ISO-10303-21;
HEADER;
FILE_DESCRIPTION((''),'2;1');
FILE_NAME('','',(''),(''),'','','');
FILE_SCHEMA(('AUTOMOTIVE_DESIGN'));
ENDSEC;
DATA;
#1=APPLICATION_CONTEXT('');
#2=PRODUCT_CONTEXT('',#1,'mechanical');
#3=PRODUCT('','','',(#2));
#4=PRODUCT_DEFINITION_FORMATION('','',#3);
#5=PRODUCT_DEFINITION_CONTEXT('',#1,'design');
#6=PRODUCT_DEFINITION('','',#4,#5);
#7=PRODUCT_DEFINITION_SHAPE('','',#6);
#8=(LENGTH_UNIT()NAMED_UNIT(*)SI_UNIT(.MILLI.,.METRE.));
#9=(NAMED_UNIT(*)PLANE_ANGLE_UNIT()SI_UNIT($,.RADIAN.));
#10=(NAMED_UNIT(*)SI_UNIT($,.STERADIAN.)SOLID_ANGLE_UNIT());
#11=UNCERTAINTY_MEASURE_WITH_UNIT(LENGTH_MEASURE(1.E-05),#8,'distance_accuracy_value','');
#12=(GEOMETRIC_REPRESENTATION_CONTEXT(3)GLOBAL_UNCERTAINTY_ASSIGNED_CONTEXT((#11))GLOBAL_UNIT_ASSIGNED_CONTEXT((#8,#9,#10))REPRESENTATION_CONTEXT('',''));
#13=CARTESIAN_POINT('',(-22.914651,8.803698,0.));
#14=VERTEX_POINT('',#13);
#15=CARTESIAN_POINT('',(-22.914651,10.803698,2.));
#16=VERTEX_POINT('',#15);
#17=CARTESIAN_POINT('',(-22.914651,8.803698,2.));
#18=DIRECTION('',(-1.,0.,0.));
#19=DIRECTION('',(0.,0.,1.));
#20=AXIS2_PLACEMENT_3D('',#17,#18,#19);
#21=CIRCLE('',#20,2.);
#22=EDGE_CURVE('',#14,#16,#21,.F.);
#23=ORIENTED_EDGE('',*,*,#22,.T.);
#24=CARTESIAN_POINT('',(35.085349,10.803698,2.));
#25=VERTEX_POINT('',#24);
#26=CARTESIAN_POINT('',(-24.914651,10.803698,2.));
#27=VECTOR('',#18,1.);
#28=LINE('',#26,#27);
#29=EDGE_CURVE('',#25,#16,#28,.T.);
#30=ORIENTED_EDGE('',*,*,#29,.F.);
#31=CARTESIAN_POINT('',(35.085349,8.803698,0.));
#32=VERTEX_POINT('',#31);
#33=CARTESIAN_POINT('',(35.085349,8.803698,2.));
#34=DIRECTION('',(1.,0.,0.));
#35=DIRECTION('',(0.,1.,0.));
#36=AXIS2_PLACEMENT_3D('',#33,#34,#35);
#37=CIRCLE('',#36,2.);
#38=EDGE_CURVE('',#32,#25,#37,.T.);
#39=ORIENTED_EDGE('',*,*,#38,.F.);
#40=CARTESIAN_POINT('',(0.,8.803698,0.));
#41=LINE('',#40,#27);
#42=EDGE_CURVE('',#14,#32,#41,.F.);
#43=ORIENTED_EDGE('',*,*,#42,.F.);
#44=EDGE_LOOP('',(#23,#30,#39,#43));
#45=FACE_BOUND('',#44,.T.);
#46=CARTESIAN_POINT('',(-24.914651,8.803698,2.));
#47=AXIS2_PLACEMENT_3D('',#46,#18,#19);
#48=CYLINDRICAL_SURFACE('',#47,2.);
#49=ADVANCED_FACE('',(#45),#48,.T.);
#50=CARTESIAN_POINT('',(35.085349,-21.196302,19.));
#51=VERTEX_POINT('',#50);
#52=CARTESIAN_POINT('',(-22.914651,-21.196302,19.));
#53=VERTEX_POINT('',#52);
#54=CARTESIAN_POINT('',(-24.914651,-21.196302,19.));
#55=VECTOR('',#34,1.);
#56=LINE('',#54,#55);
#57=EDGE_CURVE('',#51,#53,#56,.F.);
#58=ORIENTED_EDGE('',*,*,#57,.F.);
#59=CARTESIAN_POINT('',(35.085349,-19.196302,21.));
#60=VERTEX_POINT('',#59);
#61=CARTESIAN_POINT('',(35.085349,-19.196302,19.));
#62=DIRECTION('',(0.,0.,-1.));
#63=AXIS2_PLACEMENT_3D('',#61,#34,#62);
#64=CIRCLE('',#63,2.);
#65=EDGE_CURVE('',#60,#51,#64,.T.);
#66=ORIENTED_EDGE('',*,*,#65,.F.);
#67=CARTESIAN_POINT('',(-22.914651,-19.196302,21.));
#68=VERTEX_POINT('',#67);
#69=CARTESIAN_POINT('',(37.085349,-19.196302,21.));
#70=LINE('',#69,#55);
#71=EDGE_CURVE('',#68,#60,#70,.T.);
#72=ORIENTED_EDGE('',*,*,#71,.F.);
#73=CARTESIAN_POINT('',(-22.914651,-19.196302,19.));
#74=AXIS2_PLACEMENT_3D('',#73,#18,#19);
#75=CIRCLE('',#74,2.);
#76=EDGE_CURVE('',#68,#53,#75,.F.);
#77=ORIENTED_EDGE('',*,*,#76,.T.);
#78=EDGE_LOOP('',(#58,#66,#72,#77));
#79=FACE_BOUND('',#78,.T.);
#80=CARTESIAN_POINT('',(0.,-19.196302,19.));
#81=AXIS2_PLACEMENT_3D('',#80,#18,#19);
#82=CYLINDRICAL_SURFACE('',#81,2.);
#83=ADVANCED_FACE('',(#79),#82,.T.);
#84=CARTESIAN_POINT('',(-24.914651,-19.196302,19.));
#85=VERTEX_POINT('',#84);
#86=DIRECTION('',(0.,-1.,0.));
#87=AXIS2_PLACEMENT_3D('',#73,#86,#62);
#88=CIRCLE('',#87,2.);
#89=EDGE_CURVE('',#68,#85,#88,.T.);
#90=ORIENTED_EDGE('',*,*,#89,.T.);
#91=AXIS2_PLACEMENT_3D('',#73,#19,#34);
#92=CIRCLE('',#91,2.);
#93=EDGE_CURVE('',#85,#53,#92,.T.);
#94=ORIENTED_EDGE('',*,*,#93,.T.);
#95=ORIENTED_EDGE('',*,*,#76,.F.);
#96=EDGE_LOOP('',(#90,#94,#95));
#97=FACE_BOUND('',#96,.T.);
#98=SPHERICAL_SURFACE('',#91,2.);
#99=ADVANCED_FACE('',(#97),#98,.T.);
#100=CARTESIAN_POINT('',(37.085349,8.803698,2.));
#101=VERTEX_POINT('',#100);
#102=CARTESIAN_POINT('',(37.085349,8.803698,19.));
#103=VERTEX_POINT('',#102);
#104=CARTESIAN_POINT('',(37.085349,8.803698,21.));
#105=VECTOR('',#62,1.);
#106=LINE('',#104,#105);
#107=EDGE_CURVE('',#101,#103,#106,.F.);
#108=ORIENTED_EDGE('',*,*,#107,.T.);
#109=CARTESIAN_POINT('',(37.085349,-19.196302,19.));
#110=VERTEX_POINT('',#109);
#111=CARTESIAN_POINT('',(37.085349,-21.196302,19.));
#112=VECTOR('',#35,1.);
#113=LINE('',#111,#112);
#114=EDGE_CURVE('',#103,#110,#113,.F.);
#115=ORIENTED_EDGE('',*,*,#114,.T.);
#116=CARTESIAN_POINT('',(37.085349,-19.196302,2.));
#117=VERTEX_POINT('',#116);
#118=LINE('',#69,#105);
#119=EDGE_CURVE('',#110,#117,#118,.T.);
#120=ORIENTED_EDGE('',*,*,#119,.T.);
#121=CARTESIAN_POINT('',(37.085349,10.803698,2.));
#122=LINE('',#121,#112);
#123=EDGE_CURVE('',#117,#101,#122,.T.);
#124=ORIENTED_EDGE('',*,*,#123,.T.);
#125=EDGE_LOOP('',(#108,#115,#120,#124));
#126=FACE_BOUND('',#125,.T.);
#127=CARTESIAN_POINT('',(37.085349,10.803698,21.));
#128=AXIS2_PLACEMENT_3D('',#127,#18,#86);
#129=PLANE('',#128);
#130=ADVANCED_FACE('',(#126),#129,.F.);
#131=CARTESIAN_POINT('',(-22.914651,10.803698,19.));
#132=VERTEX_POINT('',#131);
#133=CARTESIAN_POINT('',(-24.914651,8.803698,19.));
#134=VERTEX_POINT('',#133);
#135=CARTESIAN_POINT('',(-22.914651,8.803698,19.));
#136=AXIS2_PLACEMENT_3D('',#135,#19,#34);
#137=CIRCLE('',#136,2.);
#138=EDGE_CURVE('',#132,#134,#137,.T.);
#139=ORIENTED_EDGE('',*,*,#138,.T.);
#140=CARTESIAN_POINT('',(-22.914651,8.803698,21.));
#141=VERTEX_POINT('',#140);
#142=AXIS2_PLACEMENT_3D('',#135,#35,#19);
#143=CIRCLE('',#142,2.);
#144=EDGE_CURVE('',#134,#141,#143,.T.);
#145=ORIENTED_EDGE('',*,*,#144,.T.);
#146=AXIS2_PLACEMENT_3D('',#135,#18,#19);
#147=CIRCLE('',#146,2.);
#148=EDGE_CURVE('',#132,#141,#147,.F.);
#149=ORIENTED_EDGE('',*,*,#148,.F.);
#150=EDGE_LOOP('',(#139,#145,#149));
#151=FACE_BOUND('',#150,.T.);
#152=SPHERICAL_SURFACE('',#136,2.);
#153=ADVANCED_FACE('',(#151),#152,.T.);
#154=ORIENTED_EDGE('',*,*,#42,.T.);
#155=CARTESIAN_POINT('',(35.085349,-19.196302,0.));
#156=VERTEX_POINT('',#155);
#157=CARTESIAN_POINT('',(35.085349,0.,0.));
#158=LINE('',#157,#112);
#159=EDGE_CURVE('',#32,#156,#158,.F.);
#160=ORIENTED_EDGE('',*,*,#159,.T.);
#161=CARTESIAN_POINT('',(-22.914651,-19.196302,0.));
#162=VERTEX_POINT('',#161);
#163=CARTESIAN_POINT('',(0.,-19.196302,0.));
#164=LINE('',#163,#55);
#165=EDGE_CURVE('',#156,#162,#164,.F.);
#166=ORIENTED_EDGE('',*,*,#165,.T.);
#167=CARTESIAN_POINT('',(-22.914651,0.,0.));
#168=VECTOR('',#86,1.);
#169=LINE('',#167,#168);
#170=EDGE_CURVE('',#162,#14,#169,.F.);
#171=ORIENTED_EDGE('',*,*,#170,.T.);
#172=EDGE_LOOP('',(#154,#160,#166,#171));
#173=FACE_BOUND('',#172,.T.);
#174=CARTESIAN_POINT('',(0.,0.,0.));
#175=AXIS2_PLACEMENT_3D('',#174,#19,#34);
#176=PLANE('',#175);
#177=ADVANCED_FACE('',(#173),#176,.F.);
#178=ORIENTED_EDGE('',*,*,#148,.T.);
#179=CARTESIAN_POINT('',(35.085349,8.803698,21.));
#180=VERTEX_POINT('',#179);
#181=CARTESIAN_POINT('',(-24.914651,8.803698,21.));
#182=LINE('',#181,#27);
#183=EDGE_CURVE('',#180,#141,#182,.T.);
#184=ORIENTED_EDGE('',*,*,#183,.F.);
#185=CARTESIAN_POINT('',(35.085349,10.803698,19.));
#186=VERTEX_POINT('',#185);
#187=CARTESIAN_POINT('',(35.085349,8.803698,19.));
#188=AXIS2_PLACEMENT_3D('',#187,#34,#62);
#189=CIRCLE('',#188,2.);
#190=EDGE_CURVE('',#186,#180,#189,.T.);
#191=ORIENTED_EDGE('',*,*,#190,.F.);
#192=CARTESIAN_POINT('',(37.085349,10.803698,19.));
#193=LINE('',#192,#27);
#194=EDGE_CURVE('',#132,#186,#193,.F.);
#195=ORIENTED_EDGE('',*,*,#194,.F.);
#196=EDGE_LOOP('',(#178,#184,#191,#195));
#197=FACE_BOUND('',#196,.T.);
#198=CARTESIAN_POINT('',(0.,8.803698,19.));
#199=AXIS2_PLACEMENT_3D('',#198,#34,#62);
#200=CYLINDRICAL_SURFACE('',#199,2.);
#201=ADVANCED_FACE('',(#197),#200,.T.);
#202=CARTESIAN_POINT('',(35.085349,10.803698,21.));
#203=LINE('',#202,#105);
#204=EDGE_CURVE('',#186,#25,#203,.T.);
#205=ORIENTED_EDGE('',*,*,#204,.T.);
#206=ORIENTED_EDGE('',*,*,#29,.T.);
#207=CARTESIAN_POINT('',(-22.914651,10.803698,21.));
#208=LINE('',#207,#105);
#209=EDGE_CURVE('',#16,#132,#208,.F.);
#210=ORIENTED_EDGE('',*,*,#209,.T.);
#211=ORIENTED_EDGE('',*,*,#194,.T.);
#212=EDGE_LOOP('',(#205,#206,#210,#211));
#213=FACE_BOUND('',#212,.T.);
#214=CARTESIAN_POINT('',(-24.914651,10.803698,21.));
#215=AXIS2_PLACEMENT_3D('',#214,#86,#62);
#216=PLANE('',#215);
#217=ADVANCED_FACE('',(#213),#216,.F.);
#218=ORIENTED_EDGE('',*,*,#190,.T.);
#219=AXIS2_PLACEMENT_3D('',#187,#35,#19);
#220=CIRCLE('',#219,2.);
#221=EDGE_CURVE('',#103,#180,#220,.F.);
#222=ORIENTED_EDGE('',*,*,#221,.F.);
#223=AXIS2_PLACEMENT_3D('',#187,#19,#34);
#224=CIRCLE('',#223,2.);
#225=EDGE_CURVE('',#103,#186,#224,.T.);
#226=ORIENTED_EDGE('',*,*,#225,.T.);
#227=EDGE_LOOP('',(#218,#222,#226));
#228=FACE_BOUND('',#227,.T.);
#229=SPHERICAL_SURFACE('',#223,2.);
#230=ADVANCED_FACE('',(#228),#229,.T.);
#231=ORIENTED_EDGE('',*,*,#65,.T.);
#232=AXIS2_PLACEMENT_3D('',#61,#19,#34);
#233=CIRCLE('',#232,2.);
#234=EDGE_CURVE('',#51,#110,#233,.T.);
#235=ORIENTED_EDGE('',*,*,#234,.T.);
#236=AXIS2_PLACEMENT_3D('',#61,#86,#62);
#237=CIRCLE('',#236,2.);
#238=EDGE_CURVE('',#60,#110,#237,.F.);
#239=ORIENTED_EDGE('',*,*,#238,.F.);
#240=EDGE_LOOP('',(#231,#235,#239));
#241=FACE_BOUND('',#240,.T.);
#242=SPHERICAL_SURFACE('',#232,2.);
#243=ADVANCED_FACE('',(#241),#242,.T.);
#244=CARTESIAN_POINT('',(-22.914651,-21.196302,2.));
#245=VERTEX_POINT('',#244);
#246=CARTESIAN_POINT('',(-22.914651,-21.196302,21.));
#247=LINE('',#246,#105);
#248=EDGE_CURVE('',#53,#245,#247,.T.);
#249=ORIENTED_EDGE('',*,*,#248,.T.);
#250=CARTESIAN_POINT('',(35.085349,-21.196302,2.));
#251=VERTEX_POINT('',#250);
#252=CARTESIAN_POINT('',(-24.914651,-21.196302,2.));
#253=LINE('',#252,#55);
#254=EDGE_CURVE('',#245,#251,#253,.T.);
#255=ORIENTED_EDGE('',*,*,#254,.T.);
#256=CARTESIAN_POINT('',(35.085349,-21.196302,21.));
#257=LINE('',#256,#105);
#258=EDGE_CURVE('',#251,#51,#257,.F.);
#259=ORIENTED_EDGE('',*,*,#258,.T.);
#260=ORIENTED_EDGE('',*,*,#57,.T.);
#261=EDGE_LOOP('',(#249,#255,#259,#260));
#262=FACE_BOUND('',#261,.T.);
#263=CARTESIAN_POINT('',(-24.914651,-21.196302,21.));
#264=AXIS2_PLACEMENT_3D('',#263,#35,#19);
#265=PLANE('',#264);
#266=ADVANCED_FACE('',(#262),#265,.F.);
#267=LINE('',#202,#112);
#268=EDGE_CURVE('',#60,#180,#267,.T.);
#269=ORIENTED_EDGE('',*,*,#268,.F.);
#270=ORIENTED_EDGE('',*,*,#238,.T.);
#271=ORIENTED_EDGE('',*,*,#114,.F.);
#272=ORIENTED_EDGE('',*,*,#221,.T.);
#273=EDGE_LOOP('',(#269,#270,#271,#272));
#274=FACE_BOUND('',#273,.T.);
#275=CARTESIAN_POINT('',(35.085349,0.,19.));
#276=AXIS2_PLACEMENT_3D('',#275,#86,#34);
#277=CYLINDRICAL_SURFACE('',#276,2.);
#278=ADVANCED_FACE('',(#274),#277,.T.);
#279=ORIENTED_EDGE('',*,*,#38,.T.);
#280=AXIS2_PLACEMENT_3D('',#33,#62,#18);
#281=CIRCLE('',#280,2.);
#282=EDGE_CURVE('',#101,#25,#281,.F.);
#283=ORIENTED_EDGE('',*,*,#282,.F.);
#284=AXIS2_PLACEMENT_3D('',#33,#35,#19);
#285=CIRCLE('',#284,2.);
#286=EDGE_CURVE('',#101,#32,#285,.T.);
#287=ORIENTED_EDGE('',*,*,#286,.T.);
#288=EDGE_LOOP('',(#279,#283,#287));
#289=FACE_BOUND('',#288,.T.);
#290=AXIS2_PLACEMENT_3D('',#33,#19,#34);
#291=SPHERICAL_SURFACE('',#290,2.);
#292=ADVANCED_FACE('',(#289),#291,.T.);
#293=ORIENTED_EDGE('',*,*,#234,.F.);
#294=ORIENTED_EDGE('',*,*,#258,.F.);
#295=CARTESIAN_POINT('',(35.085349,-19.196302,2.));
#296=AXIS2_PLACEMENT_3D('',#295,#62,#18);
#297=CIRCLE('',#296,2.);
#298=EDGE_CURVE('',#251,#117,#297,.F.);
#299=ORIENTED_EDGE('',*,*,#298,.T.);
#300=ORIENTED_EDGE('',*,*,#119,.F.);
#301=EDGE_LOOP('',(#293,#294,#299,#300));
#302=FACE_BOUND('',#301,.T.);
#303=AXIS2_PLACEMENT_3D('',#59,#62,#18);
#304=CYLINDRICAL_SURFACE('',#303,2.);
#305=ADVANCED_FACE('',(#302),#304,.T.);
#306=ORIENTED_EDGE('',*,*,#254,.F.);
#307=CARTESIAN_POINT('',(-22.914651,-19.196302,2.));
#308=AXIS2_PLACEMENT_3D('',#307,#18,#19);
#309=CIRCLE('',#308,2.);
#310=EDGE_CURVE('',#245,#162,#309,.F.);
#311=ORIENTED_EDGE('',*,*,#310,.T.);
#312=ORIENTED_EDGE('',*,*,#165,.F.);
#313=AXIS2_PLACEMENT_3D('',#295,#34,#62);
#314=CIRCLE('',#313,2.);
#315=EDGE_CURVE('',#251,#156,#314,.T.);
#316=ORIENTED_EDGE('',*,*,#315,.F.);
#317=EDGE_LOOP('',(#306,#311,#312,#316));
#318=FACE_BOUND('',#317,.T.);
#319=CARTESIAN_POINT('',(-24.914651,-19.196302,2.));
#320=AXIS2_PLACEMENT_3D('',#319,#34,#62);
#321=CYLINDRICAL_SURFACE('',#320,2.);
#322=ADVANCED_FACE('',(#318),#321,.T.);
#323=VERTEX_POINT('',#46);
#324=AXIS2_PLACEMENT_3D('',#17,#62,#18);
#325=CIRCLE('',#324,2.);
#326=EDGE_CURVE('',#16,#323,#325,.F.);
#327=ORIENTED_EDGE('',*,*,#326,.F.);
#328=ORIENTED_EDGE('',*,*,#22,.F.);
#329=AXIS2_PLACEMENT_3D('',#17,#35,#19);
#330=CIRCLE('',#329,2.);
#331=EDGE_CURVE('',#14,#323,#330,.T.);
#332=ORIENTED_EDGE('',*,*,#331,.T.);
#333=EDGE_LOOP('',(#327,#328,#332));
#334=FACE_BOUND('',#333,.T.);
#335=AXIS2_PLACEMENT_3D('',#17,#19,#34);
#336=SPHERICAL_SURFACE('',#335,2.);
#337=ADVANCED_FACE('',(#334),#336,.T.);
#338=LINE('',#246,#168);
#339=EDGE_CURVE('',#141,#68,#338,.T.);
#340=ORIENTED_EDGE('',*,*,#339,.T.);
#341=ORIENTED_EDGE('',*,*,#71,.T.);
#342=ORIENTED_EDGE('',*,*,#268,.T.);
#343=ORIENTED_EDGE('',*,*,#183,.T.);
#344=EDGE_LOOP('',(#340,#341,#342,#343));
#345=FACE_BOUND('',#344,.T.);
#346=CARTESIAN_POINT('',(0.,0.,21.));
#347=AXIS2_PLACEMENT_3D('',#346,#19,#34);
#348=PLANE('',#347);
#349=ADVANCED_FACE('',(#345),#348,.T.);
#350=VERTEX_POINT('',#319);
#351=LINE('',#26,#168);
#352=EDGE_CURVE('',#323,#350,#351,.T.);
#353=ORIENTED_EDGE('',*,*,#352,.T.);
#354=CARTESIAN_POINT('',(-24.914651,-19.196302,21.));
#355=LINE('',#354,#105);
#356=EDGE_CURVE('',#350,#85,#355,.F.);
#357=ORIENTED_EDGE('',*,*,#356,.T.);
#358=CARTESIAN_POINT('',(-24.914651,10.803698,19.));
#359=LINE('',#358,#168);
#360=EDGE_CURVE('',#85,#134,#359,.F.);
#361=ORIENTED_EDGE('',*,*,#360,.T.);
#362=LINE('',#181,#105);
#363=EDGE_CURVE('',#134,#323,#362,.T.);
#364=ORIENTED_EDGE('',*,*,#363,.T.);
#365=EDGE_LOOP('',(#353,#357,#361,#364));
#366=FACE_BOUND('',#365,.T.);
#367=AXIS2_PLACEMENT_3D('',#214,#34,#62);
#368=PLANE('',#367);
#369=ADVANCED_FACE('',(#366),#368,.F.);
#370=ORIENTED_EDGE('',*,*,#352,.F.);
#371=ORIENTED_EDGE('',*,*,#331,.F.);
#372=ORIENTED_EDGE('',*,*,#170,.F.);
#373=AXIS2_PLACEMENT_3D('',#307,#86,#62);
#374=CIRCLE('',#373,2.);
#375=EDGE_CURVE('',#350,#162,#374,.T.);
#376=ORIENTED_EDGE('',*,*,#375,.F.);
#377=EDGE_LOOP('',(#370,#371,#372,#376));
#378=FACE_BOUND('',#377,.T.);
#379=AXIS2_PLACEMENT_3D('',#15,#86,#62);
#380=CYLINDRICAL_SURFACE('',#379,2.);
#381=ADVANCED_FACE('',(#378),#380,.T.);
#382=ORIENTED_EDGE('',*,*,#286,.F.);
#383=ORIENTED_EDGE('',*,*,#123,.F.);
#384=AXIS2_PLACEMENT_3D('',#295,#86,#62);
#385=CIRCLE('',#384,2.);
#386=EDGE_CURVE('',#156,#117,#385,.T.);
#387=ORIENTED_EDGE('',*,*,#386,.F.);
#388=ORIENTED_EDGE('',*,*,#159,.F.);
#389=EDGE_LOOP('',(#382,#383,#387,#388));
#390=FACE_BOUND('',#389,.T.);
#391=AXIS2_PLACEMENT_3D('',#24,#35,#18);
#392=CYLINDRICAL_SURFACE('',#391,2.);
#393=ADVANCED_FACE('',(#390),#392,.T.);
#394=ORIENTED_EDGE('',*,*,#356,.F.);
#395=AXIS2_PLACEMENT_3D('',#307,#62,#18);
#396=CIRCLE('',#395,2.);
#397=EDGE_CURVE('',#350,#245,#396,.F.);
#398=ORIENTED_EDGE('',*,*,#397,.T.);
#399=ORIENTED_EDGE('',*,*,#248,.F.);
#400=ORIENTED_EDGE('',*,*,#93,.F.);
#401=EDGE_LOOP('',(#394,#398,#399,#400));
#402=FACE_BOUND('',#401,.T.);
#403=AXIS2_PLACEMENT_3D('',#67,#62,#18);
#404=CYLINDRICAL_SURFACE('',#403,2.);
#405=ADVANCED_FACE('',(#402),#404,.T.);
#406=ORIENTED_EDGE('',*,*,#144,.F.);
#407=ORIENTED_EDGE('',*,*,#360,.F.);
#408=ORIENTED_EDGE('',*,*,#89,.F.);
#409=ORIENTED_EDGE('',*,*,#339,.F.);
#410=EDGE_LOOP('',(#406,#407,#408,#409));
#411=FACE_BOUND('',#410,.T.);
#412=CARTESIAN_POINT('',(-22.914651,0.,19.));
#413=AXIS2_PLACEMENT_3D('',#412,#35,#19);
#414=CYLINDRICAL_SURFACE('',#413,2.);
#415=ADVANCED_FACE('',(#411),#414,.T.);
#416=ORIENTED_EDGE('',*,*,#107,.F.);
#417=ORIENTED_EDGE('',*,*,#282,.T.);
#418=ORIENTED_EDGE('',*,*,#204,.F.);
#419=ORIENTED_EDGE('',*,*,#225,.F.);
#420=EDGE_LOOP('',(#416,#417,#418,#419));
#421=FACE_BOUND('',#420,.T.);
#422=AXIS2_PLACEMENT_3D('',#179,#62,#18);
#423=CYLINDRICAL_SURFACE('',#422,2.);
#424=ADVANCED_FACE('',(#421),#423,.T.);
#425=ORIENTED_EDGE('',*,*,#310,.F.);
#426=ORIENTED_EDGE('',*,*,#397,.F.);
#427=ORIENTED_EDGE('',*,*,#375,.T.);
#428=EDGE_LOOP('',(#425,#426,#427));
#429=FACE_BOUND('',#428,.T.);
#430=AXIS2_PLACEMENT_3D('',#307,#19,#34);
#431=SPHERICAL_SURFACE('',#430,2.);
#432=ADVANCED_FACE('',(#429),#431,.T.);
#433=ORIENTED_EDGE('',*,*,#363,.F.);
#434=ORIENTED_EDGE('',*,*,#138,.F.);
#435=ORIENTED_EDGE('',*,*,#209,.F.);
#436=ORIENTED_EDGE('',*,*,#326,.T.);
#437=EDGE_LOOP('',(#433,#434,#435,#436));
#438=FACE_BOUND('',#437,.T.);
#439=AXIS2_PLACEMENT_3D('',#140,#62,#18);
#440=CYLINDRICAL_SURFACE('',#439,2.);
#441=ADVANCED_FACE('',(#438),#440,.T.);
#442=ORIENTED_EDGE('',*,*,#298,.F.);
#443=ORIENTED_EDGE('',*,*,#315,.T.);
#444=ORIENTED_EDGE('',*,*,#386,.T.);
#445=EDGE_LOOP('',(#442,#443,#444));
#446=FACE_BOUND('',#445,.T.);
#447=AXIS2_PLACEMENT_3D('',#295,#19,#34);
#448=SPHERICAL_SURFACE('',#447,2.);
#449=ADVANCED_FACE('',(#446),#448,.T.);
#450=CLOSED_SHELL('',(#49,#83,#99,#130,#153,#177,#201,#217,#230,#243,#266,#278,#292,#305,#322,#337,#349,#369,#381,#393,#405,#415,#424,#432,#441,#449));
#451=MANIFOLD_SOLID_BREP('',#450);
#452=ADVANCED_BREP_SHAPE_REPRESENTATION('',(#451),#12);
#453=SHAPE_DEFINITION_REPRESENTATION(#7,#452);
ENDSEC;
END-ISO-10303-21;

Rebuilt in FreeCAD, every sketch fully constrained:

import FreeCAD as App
import Part
import Sketcher

V = App.Vector

doc = App.newDocument("Part")
body = doc.addObject("PartDesign::Body", "Body")

# Sketch on XY plane
sketch1 = body.newObject("Sketcher::SketchObject", "Sketch")
sketch1.AttachmentSupport = (doc.getObject("XY_Plane"), [""])
sketch1.MapMode = "FlatFace"
sketch1.addGeometry([
    Part.LineSegment(V(-24.914651, 10.803698, 0), V(-24.914651, -21.196302, 0)),
    Part.LineSegment(V(-24.914651, -21.196302, 0), V(37.085349, -21.196302, 0)),
    Part.LineSegment(V(37.085349, -21.196302, 0), V(37.085349, 10.803698, 0)),
    Part.LineSegment(V(37.085349, 10.803698, 0), V(-24.914651, 10.803698, 0)),
], False)
sketch1.addConstraint([
    Sketcher.Constraint("Coincident", 0, 2, 1, 1),
    Sketcher.Constraint("Coincident", 1, 2, 2, 1),
    Sketcher.Constraint("Coincident", 2, 2, 3, 1),
    Sketcher.Constraint("Coincident", 3, 2, 0, 1),
    Sketcher.Constraint("Vertical", 0),
    Sketcher.Constraint("Horizontal", 1),
    Sketcher.Constraint("Vertical", 2),
    Sketcher.Constraint("Horizontal", 3),
    Sketcher.Constraint("DistanceX", 1, 1, 1, 2, 62.0),
    Sketcher.Constraint("DistanceY", 0, 2, 0, 1, 32.0),
    Sketcher.Constraint("DistanceY", 0, 2, -1, 1, 21.196302),
    Sketcher.Constraint("DistanceX", 0, 2, -1, 1, 24.914651),
])
pad1 = body.newObject("PartDesign::Pad", "Pad")
pad1.Profile = sketch1
pad1.Length = 21
doc.recompute()

fillet = body.newObject("PartDesign::Fillet", "Fillet")
fillet.Base = (pad1, ["Edge1"])
fillet.UseAllEdges = True
fillet.Radius = 2

doc.recompute()
